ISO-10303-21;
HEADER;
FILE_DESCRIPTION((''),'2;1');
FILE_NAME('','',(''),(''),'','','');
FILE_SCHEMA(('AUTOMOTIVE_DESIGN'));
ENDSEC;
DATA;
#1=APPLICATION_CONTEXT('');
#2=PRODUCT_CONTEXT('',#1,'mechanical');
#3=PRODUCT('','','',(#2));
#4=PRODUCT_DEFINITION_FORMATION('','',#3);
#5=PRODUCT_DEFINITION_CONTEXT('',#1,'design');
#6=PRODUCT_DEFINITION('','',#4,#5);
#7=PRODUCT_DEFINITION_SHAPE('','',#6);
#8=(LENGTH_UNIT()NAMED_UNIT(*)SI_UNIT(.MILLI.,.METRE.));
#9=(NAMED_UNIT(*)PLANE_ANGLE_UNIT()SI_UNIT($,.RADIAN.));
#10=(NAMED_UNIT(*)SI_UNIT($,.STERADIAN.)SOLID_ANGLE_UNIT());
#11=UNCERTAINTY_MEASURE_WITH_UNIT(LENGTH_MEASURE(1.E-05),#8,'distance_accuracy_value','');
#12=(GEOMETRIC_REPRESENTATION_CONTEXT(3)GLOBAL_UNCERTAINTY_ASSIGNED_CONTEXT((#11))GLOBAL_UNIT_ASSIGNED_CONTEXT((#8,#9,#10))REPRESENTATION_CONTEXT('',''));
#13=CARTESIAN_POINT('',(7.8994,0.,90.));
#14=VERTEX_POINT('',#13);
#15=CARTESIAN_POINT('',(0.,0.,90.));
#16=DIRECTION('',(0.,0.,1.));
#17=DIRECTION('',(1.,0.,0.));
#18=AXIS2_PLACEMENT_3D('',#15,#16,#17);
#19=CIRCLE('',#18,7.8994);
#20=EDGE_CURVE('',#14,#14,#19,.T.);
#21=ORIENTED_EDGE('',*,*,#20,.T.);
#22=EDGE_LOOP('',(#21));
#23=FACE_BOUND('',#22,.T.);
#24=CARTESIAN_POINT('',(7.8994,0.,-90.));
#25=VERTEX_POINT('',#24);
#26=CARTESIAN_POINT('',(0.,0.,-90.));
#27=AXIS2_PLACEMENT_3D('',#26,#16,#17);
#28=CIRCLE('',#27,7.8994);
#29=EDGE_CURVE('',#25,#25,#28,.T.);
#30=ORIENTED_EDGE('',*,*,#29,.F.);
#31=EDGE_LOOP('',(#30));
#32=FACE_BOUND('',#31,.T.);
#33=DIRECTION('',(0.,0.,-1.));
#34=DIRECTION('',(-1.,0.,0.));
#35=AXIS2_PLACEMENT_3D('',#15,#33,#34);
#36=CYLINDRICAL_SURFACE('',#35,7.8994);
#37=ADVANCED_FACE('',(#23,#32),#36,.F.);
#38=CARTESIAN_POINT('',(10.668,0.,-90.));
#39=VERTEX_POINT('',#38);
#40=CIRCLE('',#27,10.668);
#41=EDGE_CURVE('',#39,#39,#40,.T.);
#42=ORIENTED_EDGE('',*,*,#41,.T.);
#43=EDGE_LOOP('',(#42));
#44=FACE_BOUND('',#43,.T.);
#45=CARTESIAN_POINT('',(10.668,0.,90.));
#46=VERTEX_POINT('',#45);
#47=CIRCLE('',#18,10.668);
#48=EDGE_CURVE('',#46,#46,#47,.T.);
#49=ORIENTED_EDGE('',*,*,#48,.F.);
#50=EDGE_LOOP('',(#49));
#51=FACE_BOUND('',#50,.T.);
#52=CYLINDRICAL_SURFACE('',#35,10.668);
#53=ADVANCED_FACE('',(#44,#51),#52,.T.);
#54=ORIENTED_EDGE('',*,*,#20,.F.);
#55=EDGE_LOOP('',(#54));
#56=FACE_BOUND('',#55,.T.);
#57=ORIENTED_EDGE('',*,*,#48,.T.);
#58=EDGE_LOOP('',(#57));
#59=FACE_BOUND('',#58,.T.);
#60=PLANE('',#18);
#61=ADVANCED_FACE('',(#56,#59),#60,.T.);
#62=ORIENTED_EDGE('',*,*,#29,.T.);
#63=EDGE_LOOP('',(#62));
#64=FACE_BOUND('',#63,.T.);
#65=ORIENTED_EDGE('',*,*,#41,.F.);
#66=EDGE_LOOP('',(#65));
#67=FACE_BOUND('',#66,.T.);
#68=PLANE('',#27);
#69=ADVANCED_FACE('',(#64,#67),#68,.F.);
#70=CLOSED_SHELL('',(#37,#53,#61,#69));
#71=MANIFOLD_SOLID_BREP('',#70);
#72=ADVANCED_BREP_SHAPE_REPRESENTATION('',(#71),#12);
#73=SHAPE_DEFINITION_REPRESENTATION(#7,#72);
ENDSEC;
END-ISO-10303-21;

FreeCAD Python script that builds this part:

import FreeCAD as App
import Part
import Sketcher
Q = App.Units.Quantity

doc = App.newDocument("Part")
body = doc.addObject("PartDesign::Body", "Body")

# Sketch on XY plane
sketch1 = doc.addObject("Sketcher::SketchObject", "Sketch")
body.addObject(sketch1)
sketch1.AttachmentSupport = (doc.XY_Plane, [""])
sketch1.MapMode = "FlatFace"
sketch1.addGeometry(Part.Circle(App.Vector(0, 0, 0), App.Vector(0, 0, 1), 11), False)
sketch1.addGeometry(Part.Circle(App.Vector(0, 0, 0), App.Vector(0, 0, 1), 8), False)
sketch1.addConstraint(Sketcher.Constraint("Coincident", 0, 3, -1, 1))
sketch1.addConstraint(Sketcher.Constraint("Coincident", 1, 3, -1, 1))
sketch1.addConstraint(Sketcher.Constraint("Diameter", 0, Q("0.84 in")))
sketch1.addConstraint(Sketcher.Constraint("Diameter", 1, Q("0.622 in")))
pad1 = doc.addObject("PartDesign::Pad", "Pad")
body.addObject(pad1)
pad1.Profile = sketch1
pad1.Length = 180
pad1.Midplane = True

doc.recompute()
